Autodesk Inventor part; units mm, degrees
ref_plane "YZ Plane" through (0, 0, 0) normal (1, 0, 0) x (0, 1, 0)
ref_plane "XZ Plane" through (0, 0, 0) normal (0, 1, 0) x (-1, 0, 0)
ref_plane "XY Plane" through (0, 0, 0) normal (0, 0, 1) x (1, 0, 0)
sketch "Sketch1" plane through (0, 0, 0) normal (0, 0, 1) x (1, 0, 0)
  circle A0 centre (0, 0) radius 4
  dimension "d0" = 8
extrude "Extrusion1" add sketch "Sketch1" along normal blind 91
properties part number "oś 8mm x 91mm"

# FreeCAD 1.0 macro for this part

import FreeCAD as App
import Part
import Sketcher

V = App.Vector

doc = App.newDocument("Part")
body = doc.addObject("PartDesign::Body", "Body")

sketch1 = doc.addObject("Sketcher::SketchObject", "Sketch")
body.addObject(sketch1)
sketch1.AttachmentSupport = (doc.XY_Plane, [""])
sketch1.MapMode = "FlatFace"
sketch1.addGeometry(Part.Circle(V(0, 0, 0), V(0, 0, 1), 4), False)
sketch1.addConstraint([
    Sketcher.Constraint("Coincident", 0, 3, -1, 1),
    Sketcher.Constraint("Diameter", 0, 8.0),
])
pad1 = doc.addObject("PartDesign::Pad", "Pad")
body.addObject(pad1)
pad1.Profile = sketch1
pad1.Length = 91

doc.recompute()
